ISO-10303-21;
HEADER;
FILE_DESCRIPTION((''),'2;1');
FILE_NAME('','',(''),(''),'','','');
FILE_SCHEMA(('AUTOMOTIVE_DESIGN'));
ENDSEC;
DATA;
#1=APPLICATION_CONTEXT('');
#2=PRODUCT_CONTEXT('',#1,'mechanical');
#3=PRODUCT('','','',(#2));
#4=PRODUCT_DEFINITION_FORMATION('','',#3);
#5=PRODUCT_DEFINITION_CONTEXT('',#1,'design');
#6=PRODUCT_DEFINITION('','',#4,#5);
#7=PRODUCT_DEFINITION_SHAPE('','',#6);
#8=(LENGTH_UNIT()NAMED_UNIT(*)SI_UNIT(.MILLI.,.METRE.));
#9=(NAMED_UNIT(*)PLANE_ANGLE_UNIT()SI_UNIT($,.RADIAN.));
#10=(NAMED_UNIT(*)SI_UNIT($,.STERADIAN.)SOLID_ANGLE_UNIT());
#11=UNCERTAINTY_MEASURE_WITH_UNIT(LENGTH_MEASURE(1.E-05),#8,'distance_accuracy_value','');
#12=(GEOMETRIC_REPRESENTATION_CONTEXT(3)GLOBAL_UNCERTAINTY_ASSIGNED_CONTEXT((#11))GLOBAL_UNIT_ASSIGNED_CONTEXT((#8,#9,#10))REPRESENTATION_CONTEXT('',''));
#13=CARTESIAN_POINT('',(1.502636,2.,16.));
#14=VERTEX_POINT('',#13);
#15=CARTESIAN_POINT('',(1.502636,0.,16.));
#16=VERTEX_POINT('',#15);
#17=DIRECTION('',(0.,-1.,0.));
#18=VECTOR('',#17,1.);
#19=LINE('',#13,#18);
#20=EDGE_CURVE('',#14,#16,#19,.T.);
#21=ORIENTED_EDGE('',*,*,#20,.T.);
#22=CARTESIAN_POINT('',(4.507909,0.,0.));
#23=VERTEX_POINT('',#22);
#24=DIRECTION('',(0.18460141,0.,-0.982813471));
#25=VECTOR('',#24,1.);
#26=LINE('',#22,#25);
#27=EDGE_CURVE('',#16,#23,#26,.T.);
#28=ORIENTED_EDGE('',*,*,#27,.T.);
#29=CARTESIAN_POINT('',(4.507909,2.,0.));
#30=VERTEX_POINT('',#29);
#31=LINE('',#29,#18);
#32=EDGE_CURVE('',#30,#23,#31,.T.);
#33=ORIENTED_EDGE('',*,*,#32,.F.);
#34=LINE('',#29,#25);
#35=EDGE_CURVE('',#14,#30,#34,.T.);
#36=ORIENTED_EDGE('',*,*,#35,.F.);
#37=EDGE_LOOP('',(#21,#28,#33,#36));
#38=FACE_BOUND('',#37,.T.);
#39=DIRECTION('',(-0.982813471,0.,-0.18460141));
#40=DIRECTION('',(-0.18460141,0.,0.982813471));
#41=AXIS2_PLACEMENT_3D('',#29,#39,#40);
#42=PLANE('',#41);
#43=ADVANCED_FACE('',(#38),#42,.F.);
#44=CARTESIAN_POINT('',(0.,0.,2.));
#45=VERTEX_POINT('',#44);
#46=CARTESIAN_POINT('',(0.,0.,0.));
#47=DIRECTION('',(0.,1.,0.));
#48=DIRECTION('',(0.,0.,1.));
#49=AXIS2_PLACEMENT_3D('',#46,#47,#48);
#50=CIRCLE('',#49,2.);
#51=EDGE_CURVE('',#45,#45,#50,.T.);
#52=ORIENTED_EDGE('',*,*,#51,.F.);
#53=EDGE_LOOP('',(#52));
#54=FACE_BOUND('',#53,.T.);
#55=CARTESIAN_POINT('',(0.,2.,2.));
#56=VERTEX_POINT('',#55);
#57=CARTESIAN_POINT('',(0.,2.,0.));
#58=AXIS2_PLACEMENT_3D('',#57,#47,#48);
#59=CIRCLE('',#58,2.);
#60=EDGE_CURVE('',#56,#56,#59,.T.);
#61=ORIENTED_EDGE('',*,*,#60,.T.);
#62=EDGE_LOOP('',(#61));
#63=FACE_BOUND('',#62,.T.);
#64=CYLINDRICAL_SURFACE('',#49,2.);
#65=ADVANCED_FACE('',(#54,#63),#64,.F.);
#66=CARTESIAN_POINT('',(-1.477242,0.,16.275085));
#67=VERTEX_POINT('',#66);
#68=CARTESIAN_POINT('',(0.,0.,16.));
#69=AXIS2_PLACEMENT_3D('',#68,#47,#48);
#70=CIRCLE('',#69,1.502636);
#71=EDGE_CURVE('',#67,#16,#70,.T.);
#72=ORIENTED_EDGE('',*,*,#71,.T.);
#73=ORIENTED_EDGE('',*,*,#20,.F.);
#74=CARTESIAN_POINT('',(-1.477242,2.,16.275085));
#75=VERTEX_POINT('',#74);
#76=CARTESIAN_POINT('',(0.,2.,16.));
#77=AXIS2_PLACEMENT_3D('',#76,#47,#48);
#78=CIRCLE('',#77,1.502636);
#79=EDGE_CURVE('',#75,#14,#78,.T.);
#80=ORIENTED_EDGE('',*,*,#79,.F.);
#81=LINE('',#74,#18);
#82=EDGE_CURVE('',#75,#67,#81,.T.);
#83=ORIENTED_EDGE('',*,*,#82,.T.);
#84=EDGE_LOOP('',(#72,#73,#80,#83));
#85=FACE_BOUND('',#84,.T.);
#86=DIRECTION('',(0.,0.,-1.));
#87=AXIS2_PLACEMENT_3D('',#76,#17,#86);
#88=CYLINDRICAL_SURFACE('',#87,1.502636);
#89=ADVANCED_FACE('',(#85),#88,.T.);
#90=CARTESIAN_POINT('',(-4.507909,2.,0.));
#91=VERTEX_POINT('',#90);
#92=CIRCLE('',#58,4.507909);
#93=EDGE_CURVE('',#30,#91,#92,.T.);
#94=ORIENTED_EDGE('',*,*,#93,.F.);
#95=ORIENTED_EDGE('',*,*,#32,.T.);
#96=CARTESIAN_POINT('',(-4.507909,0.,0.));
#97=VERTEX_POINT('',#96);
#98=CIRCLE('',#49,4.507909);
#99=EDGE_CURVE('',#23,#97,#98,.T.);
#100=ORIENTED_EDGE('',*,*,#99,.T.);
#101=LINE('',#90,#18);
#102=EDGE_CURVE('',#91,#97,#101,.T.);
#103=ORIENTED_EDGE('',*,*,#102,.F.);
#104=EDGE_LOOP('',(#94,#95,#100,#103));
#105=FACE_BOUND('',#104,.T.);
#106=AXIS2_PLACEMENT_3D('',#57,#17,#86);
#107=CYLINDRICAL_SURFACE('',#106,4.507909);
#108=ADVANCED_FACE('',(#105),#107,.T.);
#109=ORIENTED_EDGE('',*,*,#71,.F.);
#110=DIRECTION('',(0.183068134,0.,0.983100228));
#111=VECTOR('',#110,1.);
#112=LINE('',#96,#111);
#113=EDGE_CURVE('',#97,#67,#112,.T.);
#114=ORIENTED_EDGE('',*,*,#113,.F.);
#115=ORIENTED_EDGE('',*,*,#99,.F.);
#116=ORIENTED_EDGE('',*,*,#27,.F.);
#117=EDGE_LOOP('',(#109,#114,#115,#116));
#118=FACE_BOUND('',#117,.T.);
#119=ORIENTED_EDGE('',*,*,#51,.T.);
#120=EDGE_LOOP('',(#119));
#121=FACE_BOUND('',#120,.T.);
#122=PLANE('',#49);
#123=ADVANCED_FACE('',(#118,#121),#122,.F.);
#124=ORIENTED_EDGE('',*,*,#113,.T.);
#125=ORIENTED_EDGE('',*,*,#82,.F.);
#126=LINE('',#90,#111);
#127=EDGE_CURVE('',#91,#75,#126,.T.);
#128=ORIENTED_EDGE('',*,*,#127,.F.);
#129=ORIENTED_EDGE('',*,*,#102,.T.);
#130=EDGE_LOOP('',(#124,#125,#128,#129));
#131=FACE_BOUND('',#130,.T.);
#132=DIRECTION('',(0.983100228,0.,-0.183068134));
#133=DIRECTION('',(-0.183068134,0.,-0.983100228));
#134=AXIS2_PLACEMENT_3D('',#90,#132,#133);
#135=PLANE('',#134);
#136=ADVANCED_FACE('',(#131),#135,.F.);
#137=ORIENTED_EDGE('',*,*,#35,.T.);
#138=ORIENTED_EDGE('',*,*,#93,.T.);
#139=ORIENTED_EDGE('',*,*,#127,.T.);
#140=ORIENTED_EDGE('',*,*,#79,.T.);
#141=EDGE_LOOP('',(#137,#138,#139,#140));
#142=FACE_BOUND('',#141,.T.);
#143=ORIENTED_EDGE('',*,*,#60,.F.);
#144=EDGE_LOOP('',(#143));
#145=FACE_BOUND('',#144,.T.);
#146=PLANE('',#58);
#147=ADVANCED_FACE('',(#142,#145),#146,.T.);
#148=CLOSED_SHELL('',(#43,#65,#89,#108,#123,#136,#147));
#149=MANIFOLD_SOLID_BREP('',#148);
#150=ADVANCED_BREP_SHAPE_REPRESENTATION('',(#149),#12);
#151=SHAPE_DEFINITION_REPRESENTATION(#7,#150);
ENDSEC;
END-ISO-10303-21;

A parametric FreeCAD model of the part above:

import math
import FreeCAD as App
import Part
import Sketcher

V = App.Vector

doc = App.newDocument("Part")
body = doc.addObject("PartDesign::Body", "Body")

sketch1 = body.newObject("Sketcher::SketchObject", "Sketch")
sketch1.AttachmentSupport = (doc.getObject("XZ_Plane"), [""])
sketch1.MapMode = "FlatFace"
sketch1.addGeometry(Part.LineSegment(V(-4.5, 0, 0), V(-1.5, 16.3, 0)), False)
sketch1.addGeometry(Part.ArcOfCircle(Part.Circle(V(0, 16, 0), V(0, 0, 1), 1.5), math.radians(0), math.radians(169)), False)
sketch1.addGeometry(Part.LineSegment(V(1.5, 16, 0), V(4.5, 0, 0)), False)
sketch1.addGeometry(Part.ArcOfCircle(Part.Circle(V(0, 0, 0), V(0, 0, 1), 4.5), math.radians(180), math.radians(360)), False)
sketch1.addConstraint(Sketcher.Constraint("Tangent", 0, 2, 1, 2))
sketch1.addConstraint(Sketcher.Constraint("Coincident", 1, 1, 2, 1))
sketch1.addConstraint(Sketcher.Constraint("Coincident", 2, 2, 3, 2))
sketch1.addConstraint(Sketcher.Constraint("Coincident", 3, 1, 0, 1))
sketch1.addConstraint(Sketcher.Constraint("Coincident", 3, 3, -1, 1))
sketch1.addConstraint(Sketcher.Constraint("PointOnObject", 1, 3, -2))
sketch1.addConstraint(Sketcher.Constraint("PointOnObject", 2, 2, -1))
sketch1.addConstraint(Sketcher.Constraint("PointOnObject", 3, 1, -1))
sketch1.addConstraint(Sketcher.Constraint("DistanceY", -1, 1, 1, 3, 16.0))
sketch1.addConstraint(Sketcher.Constraint("DistanceY", -1, 1, 1, 1, 16.0))
sketch1.addConstraint(Sketcher.Constraint("Radius", 3, 4.507909))
sketch1.addConstraint(Sketcher.Constraint("Radius", 1, 1.502636))
pad1 = body.newObject("PartDesign::Pad", "Pad")
pad1.Profile = sketch1
pad1.Length = 2
pad1.Reversed = True

sketch2 = body.newObject("Sketcher::SketchObject", "Sketch001")
sketch2.AttachmentSupport = (doc.getObject("XZ_Plane"), [""])
sketch2.MapMode = "FlatFace"
sketch2.AttachmentOffset = App.Placement(V(0, 0, -2), App.Rotation())
sketch2.addGeometry(Part.Circle(V(0, 0, 0), V(0, 0, 1), 2), False)
sketch2.addConstraint(Sketcher.Constraint("Coincident", 0, 3, -1, 1))
sketch2.addConstraint(Sketcher.Constraint("Diameter", 0, 4.0))
pocket1 = body.newObject("PartDesign::Pocket", "Pocket")
pocket1.Profile = sketch2
pocket1.Length = 2
pocket1.Reversed = True

doc.recompute()
